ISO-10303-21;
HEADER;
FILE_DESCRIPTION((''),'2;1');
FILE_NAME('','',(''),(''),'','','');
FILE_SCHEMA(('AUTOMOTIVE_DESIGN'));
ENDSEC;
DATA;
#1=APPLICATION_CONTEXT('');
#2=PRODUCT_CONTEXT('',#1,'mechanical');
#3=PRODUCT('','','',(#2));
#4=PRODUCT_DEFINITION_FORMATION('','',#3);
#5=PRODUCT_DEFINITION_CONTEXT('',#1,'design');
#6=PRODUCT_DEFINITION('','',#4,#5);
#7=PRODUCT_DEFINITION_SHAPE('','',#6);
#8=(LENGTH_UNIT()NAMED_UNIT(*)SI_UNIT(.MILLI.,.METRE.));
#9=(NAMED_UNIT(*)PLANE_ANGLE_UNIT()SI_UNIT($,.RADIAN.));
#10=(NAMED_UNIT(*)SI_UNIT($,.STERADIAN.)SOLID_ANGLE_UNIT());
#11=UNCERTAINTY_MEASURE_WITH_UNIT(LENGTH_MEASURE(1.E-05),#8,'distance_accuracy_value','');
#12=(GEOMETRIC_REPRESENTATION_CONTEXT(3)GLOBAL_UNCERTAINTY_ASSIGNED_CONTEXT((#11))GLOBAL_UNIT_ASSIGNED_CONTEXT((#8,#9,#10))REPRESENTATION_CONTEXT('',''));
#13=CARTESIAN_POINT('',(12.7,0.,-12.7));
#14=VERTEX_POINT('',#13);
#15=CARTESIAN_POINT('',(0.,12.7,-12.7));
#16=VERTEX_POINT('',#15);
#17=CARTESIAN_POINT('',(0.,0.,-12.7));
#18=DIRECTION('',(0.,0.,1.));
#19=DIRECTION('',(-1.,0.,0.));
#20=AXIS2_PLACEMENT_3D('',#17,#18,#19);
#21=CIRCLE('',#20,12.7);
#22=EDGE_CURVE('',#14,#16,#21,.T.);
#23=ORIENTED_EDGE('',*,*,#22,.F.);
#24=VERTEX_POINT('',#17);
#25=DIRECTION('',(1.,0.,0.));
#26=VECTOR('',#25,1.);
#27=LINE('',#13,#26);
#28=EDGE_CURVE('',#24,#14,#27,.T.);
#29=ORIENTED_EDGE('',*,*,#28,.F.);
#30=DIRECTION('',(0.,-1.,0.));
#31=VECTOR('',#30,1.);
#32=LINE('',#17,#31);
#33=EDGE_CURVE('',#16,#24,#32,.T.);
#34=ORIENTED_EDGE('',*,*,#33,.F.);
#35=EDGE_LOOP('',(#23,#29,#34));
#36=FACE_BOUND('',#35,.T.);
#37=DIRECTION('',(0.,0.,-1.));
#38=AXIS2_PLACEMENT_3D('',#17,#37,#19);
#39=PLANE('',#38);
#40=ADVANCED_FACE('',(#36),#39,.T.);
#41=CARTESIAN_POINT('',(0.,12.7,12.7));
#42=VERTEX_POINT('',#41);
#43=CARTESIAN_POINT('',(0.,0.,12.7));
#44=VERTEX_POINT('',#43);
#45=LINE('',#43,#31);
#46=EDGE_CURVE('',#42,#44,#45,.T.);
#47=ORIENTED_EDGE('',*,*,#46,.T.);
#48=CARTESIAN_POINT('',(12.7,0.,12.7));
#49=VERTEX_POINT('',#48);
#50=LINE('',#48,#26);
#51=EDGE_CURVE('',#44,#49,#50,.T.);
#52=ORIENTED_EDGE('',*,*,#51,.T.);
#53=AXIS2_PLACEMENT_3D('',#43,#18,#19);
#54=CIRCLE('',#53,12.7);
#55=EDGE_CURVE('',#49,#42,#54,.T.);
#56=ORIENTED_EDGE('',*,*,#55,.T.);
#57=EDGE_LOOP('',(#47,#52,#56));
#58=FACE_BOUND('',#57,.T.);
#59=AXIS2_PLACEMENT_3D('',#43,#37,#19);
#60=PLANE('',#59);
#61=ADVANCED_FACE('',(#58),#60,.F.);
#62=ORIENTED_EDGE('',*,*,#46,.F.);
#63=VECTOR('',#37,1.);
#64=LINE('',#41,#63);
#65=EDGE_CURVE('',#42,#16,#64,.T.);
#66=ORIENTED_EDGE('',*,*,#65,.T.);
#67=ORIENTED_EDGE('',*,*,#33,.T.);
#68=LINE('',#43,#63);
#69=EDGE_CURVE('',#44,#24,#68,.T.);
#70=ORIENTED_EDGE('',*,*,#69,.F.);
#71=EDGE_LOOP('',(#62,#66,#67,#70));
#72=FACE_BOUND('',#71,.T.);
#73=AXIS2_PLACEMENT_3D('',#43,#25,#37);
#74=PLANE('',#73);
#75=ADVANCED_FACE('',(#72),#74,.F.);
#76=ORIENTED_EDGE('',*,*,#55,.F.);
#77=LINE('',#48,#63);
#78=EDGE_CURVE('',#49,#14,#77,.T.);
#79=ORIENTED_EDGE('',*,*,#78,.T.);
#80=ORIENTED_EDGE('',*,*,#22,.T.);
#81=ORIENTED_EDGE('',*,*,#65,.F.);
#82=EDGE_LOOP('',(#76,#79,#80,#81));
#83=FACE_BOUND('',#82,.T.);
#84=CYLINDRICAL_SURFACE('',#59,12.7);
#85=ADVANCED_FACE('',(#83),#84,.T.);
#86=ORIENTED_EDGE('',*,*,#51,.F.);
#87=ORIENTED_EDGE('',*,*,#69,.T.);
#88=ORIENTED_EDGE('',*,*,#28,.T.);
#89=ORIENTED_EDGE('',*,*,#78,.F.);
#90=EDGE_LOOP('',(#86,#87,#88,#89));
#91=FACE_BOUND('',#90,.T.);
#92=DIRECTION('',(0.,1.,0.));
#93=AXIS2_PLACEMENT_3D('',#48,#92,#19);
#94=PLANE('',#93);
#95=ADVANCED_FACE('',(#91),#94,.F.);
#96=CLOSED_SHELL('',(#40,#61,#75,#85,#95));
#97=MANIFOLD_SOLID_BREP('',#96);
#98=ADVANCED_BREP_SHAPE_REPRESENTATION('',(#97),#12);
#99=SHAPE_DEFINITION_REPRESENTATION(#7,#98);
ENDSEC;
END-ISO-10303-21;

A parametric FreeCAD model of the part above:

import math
import FreeCAD as App
import Part
import Sketcher
Q = App.Units.Quantity

doc = App.newDocument("Part")
params = doc.addObject("Spreadsheet::Sheet", "Params")
for row, (alias, value) in enumerate([
    ("sketch1_radius", "0.5 in"),
    ("pad1_length", "1 in"),
], start=1):
    params.set(f"A{row}", alias)
    params.set(f"B{row}", "=" + value)
    params.setAlias(f"B{row}", alias)

body = doc.addObject("PartDesign::Body", "Body")

# Sketch on XY plane
sketch1 = body.newObject("Sketcher::SketchObject", "Sketch")
sketch1.AttachmentSupport = (doc.getObject("XY_Plane"), [""])
sketch1.MapMode = "FlatFace"
sketch1.addGeometry([
    Part.LineSegment(App.Vector(0, 0, 0), App.Vector(12.7, 0, 0)),
    Part.ArcOfCircle(Part.Circle(App.Vector(0, 0, 0), App.Vector(0, 0, 1), 12.7), math.radians(0), math.radians(90)),
    Part.LineSegment(App.Vector(0, 12.7, 0), App.Vector(0, 0, 0)),
], False)
sketch1.addConstraint([
    Sketcher.Constraint("Coincident", 0, 2, 1, 1),
    Sketcher.Constraint("Coincident", 1, 2, 2, 1),
    Sketcher.Constraint("Coincident", 2, 2, 0, 1),
    Sketcher.Constraint("Horizontal", 0),
    Sketcher.Constraint("Vertical", 2),
    Sketcher.Constraint("Coincident", 1, 3, -1, 1),
    Sketcher.Constraint("Coincident", 2, 2, -1, 1),
    Sketcher.Constraint("Radius", 1, Q("0.5 in")),
])
sketch1.setExpression("Constraints[7]", "Params.sketch1_radius")
pad1 = body.newObject("PartDesign::Pad", "Pad")
pad1.Profile = sketch1
pad1.setExpression("Length", "Params.pad1_length")
pad1.Midplane = True

doc.recompute()
